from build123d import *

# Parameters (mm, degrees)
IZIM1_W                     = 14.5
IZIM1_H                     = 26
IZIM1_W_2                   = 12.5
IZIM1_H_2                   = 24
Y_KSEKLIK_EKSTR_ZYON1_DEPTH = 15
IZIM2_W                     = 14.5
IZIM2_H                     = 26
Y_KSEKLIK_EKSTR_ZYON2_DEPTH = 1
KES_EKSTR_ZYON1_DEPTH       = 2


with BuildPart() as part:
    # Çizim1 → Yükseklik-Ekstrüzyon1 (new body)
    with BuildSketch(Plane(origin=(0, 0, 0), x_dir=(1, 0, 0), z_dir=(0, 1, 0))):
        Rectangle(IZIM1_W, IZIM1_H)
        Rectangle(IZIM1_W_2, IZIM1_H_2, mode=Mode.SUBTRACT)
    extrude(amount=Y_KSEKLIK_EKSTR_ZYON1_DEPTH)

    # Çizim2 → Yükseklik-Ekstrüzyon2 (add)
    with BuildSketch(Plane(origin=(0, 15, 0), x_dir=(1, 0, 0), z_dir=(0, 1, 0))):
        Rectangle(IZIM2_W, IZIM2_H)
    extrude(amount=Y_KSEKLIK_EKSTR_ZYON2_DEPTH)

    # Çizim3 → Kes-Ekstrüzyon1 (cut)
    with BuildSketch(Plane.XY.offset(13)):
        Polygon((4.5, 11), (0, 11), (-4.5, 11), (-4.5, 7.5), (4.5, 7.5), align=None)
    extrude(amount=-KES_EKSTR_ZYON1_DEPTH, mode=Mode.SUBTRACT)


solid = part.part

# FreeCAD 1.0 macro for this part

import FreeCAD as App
import Part
import Sketcher

V = App.Vector


def add_polygon(sketch, points):
    """Adds a closed chain of lines whose ends are joined by coincident constraints."""
    first, n = sketch.GeometryCount, len(points)
    for a, b in zip(points, points[1:] + points[:1]):
        sketch.addGeometry(Part.LineSegment(App.Vector(*a, 0), App.Vector(*b, 0)), False)
    for i in range(n):
        sketch.addConstraint(Sketcher.Constraint("Coincident", first + i, 2, first + (i + 1) % n, 1))

doc = App.newDocument("Part")
params = doc.addObject("Spreadsheet::Sheet", "Params")
for row, (alias, value) in enumerate([
    ("sketch1_height", "26 mm"),
    ("sketch1_height2", "24 mm"),
    ("sketch1_width", "14.5 mm"),
    ("sketch1_width2", "12.5 mm"),
    ("pad1_length", "15 mm"),
    ("sketch2_height", "26 mm"),
    ("sketch2_width", "14.5 mm"),
    ("pad2_length", "1 mm"),
    ("sketch3_width", "9 mm"),
    ("sketch3_height", "3.5 mm"),
    ("pocket1_length", "2 mm"),
], start=1):
    params.set(f"A{row}", alias)
    params.set(f"B{row}", "=" + value)
    params.setAlias(f"B{row}", alias)

body = doc.addObject("PartDesign::Body", "Body")

sketch1 = body.newObject("Sketcher::SketchObject", "Sketch")
sketch1.AttachmentSupport = (doc.getObject("XZ_Plane"), [""])
sketch1.MapMode = "FlatFace"
add_polygon(sketch1, [(-7.25, -13), (-7.25, 13), (7.25, 13), (7.25, -13)])
add_polygon(sketch1, [(6.25, 12), (-6.25, 12), (-6.25, -12), (6.25, -12)])
sketch1.addConstraint(Sketcher.Constraint("Vertical", 0))
sketch1.addConstraint(Sketcher.Constraint("Horizontal", 1))
sketch1.addConstraint(Sketcher.Constraint("Vertical", 2))
sketch1.addConstraint(Sketcher.Constraint("Horizontal", 3))
sketch1.addConstraint(Sketcher.Constraint("Horizontal", 4))
sketch1.addConstraint(Sketcher.Constraint("Vertical", 5))
sketch1.addConstraint(Sketcher.Constraint("Horizontal", 6))
sketch1.addConstraint(Sketcher.Constraint("Vertical", 7))
sketch1.addConstraint(Sketcher.Constraint("Symmetric", 0, 2, 2, 2, -1, 1))
sketch1.addConstraint(Sketcher.Constraint("Symmetric", 4, 2, 6, 2, -1, 1))
sketch1.addConstraint(Sketcher.Constraint("DistanceY", 0, 1, 0, 2, 26.0))
sketch1.addConstraint(Sketcher.Constraint("DistanceY", 5, 2, 5, 1, 24.0))
sketch1.addConstraint(Sketcher.Constraint("DistanceX", 1, 1, 1, 2, 14.5))
sketch1.addConstraint(Sketcher.Constraint("DistanceX", 4, 2, 4, 1, 12.5))
sketch1.setExpression("Constraints[18]", "Params.sketch1_height")
sketch1.setExpression("Constraints[19]", "Params.sketch1_height2")
sketch1.setExpression("Constraints[20]", "Params.sketch1_width")
sketch1.setExpression("Constraints[21]", "Params.sketch1_width2")
pad1 = body.newObject("PartDesign::Pad", "Pad")
pad1.Profile = sketch1
pad1.setExpression("Length", "Params.pad1_length")
pad1.Reversed = True

sketch2 = body.newObject("Sketcher::SketchObject", "Sketch001")
sketch2.AttachmentSupport = (doc.getObject("XZ_Plane"), [""])
sketch2.MapMode = "FlatFace"
sketch2.AttachmentOffset = App.Placement(V(0, 0, -15), App.Rotation())
add_polygon(sketch2, [(-7.25, -13), (-7.25, 13), (7.25, 13), (7.25, -13)])
sketch2.addConstraint(Sketcher.Constraint("Vertical", 0))
sketch2.addConstraint(Sketcher.Constraint("Horizontal", 1))
sketch2.addConstraint(Sketcher.Constraint("Vertical", 2))
sketch2.addConstraint(Sketcher.Constraint("Horizontal", 3))
sketch2.addConstraint(Sketcher.Constraint("Symmetric", 0, 2, 2, 2, -1, 1))
sketch2.addConstraint(Sketcher.Constraint("DistanceY", 0, 1, 0, 2, 26.0))
sketch2.addConstraint(Sketcher.Constraint("DistanceX", 1, 1, 1, 2, 14.5))
sketch2.setExpression("Constraints[9]", "Params.sketch2_height")
sketch2.setExpression("Constraints[10]", "Params.sketch2_width")
pad2 = body.newObject("PartDesign::Pad", "Pad001")
pad2.Profile = sketch2
pad2.setExpression("Length", "Params.pad2_length")
pad2.Reversed = True

sketch3 = body.newObject("Sketcher::SketchObject", "Sketch002")
sketch3.AttachmentSupport = (doc.getObject("XY_Plane"), [""])
sketch3.MapMode = "FlatFace"
sketch3.AttachmentOffset = App.Placement(V(0, 0, 13), App.Rotation())
add_polygon(sketch3, [(4.5, 11), (-4.5, 11), (-4.5, 7.5), (4.5, 7.5)])
sketch3.addConstraint(Sketcher.Constraint("Horizontal", 0))
sketch3.addConstraint(Sketcher.Constraint("Vertical", 1))
sketch3.addConstraint(Sketcher.Constraint("Horizontal", 2))
sketch3.addConstraint(Sketcher.Constraint("Vertical", 3))
sketch3.addConstraint(Sketcher.Constraint("DistanceX", 0, 2, 0, 1, 9.0))
sketch3.addConstraint(Sketcher.Constraint("DistanceY", 1, 2, 1, 1, 3.5))
sketch3.addConstraint(Sketcher.Constraint("DistanceY", -1, 1, 0, 2, 11.0))
sketch3.addConstraint(Sketcher.Constraint("DistanceX", 0, 2, -1, 1, 4.5))
sketch3.setExpression("Constraints[8]", "Params.sketch3_width")
sketch3.setExpression("Constraints[9]", "Params.sketch3_height")
pocket1 = body.newObject("PartDesign::Pocket", "Pocket")
pocket1.Profile = sketch3
pocket1.setExpression("Length", "Params.pocket1_length")

doc.recompute()
